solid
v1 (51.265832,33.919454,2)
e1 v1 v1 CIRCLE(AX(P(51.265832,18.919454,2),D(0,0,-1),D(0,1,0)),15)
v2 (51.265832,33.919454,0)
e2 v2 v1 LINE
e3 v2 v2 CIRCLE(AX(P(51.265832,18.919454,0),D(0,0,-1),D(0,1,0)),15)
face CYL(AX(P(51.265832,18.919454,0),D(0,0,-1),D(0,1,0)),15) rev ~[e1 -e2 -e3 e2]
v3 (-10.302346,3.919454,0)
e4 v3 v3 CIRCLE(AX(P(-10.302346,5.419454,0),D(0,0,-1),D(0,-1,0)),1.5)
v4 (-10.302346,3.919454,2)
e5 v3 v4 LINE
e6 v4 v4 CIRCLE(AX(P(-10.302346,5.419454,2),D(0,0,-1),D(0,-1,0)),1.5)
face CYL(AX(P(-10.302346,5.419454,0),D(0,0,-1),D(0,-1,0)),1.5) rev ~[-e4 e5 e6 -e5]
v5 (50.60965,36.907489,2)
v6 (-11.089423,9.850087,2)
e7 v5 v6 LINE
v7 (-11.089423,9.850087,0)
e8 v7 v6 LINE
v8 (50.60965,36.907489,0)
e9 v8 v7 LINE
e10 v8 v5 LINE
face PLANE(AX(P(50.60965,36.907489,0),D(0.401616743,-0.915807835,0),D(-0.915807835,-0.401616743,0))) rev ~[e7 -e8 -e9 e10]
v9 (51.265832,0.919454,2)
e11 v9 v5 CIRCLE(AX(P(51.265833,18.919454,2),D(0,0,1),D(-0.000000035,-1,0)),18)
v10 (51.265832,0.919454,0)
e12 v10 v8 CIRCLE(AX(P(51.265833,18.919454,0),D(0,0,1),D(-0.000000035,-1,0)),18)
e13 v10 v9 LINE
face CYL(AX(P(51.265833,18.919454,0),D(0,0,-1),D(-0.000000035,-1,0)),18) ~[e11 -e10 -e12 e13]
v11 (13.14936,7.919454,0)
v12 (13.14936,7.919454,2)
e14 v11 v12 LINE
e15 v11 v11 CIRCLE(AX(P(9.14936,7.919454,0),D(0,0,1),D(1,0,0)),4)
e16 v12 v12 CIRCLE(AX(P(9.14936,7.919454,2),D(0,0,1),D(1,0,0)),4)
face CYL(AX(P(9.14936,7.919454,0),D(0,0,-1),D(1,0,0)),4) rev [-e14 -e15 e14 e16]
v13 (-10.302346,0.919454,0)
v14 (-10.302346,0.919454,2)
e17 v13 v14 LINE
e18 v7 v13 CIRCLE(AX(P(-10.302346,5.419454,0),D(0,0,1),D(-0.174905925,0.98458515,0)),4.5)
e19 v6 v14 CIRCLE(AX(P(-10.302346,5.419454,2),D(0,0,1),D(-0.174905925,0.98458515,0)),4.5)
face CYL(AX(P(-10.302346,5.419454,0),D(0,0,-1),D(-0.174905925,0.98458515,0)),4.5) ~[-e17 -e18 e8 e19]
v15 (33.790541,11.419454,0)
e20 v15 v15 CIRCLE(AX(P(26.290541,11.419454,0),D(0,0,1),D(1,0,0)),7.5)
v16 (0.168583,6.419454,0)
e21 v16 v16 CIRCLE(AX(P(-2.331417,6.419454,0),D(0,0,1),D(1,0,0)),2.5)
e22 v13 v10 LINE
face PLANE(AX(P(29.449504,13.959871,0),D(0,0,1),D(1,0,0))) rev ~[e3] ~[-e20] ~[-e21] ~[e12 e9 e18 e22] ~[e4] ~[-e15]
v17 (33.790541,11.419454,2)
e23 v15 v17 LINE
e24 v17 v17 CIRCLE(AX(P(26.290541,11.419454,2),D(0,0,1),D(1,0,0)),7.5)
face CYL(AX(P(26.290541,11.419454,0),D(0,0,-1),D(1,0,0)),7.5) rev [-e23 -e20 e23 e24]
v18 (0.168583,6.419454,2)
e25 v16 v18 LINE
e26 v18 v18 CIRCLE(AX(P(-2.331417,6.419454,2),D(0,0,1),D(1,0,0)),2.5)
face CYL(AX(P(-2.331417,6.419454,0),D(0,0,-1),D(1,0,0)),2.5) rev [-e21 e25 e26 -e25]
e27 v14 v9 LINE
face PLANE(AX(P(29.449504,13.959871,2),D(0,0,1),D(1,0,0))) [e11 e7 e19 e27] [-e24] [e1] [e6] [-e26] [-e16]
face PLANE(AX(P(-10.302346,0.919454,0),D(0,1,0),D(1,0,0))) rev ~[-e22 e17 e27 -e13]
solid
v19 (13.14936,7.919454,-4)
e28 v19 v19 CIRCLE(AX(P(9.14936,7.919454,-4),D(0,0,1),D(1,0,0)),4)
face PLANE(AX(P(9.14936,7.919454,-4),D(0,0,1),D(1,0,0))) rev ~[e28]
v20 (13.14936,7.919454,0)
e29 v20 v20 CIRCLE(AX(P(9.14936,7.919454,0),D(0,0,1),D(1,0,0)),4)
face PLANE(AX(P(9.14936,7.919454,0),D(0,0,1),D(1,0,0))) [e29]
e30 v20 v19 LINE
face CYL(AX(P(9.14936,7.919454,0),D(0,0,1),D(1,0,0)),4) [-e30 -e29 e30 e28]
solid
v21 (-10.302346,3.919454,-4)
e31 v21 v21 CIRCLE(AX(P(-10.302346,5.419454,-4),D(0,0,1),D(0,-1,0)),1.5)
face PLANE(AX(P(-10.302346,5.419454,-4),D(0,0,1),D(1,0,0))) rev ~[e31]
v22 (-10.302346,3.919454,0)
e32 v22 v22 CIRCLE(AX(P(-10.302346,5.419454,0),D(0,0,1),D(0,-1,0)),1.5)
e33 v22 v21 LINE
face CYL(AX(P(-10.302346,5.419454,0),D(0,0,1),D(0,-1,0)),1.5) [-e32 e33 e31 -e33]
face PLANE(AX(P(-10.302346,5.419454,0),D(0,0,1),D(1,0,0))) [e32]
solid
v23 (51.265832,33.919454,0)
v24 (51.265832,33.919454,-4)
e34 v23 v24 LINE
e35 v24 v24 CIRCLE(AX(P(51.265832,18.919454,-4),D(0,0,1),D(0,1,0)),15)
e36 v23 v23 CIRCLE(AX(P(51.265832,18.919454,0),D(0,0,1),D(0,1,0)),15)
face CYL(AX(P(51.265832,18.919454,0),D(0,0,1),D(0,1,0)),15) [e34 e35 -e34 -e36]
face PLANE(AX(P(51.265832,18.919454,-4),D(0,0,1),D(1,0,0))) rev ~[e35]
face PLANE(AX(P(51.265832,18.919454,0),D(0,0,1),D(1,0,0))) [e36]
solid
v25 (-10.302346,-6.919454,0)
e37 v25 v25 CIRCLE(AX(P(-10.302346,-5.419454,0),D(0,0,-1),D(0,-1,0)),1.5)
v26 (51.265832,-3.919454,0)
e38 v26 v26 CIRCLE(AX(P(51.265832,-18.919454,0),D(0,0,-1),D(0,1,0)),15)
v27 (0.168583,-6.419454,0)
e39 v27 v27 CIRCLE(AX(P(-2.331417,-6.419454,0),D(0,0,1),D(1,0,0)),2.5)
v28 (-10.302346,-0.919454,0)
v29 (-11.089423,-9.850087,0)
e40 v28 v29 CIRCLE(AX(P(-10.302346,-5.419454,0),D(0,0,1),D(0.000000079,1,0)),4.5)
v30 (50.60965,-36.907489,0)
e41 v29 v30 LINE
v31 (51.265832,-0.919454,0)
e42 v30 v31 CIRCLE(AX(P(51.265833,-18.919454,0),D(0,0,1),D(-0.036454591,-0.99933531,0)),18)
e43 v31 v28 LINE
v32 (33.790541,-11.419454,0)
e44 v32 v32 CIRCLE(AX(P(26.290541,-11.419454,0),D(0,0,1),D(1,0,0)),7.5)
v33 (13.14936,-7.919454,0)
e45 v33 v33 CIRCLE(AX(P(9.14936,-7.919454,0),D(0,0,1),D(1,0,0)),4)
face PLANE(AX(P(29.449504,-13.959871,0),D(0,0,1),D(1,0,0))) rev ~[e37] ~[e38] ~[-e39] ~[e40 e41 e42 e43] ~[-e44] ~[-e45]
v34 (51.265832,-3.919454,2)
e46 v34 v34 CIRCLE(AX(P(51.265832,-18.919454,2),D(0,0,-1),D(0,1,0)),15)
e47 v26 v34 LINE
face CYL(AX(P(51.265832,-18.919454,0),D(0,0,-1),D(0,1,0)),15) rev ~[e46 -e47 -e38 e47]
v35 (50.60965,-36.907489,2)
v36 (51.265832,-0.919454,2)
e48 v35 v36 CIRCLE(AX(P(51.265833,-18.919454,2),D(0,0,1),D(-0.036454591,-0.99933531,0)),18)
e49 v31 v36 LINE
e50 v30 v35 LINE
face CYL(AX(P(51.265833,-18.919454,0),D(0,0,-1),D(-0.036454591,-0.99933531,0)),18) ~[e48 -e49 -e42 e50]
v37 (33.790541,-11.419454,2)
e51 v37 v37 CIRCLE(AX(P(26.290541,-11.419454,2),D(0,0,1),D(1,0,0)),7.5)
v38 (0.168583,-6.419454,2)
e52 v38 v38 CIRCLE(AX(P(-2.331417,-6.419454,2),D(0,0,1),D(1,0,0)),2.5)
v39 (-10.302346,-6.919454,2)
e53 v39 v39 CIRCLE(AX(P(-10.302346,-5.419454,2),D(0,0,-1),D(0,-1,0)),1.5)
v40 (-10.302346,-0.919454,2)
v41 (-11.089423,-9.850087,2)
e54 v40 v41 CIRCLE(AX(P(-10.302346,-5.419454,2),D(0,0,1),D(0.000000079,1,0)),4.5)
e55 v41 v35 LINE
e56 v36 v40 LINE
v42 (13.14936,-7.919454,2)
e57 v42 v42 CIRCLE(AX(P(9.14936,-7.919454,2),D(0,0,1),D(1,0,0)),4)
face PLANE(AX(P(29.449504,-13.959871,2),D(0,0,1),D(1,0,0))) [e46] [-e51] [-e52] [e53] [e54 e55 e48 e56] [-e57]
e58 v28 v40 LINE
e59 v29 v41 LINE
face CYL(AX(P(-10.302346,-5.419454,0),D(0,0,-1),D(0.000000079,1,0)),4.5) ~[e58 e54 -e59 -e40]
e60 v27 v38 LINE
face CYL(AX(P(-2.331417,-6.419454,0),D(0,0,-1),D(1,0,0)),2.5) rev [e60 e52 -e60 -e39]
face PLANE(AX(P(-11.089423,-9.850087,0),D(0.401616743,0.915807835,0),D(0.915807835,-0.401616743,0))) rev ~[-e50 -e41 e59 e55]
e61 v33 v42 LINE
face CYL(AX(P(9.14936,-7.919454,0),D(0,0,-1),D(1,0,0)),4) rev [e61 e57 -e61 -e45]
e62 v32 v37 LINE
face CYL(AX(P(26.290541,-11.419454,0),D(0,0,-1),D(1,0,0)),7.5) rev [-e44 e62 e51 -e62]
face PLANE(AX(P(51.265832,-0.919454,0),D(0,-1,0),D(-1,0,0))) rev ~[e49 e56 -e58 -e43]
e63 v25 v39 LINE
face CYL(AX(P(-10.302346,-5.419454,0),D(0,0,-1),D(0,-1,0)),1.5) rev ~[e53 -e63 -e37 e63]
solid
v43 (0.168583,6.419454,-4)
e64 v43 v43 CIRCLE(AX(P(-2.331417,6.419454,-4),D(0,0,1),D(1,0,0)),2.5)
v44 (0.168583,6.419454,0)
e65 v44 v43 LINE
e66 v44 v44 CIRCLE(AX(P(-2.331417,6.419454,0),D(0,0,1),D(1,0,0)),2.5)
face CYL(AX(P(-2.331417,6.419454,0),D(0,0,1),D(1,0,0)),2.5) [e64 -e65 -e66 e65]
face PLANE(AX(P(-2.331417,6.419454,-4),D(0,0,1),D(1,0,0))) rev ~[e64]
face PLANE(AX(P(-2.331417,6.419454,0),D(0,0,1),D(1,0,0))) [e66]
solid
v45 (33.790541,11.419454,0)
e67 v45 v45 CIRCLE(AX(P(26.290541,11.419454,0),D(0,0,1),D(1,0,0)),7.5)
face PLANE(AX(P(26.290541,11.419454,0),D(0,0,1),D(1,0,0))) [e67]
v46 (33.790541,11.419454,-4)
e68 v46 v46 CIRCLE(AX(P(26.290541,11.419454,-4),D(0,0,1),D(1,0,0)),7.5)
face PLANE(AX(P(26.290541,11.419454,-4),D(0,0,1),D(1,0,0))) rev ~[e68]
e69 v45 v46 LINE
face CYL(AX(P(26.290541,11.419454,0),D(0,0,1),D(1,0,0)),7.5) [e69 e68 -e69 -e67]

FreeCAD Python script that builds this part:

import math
import FreeCAD as App
import Part
import Sketcher

V = App.Vector
Q = App.Units.Quantity

doc = App.newDocument("Part")
body = doc.addObject("PartDesign::Body", "Body")
body.AllowCompound = True

sketch1 = body.newObject("Sketcher::SketchObject", "Sketch")
sketch1.AttachmentSupport = (doc.getObject("XY_Plane"), [""])
sketch1.MapMode = "FlatFace"
sketch1.addGeometry([
    Part.ArcOfCircle(Part.Circle(V(-10.3, -5.4, 0), V(0, 0, 1), 4.5), math.radians(90), math.radians(260)),
    Part.LineSegment(V(-11.1, -9.9, 0), V(50.6, -36.9, 0)),
    Part.ArcOfCircle(Part.Circle(V(51.3, -18.9, 0), V(0, 0, 1), 18), math.radians(-92), math.radians(90)),
    Part.LineSegment(V(51.3, -0.9, 0), V(-10.3, -0.9, 0)),
    Part.Circle(V(51.3, -18.9, 0), V(0, 0, 1), 15),
    Part.Circle(V(26.3, -11.4, 0), V(0, 0, 1), 7.5),
    Part.Circle(V(-2.3, -6.4, 0), V(0, 0, 1), 2.5),
    Part.Circle(V(-10.3, -5.4, 0), V(0, 0, 1), 1.5),
    Part.Circle(V(9.1, -7.9, 0), V(0, 0, 1), 4),
    Part.LineSegment(V(-10.3, 0.9, 0), V(51.3, 0.9, 0)),
    Part.ArcOfCircle(Part.Circle(V(51.3, 18.9, 0), V(0, 0, 1), 18), math.radians(-90), math.radians(92)),
    Part.LineSegment(V(50.6, 36.9, 0), V(-11.1, 9.9, 0)),
    Part.ArcOfCircle(Part.Circle(V(-10.3, 5.4, 0), V(0, 0, 1), 4.5), math.radians(100), math.radians(270)),
    Part.Circle(V(-10.3, 5.4, 0), V(0, 0, 1), 1.5),
    Part.Circle(V(-2.3, 6.4, 0), V(0, 0, 1), 2.5),
    Part.Circle(V(9.1, 7.9, 0), V(0, 0, 1), 4),
    Part.Circle(V(26.3, 11.4, 0), V(0, 0, 1), 7.5),
    Part.Circle(V(51.3, 18.9, 0), V(0, 0, 1), 15),
], False)
sketch1.addConstraint([
    Sketcher.Constraint("Coincident", 0, 2, 1, 1),
    Sketcher.Constraint("Coincident", 1, 2, 2, 1),
    Sketcher.Constraint("Tangent", 2, 2, 3, 1),
    Sketcher.Constraint("Tangent", 3, 2, 0, 1),
    Sketcher.Constraint("Tangent", 9, 2, 10, 1),
    Sketcher.Constraint("Coincident", 10, 2, 11, 1),
    Sketcher.Constraint("Coincident", 11, 2, 12, 1),
    Sketcher.Constraint("Tangent", 12, 2, 9, 1),
    Sketcher.Constraint("Horizontal", 3),
    Sketcher.Constraint("Horizontal", 9),
    Sketcher.Constraint("Coincident", 4, 3, 2, 3),
    Sketcher.Constraint("Coincident", 7, 3, 0, 3),
    Sketcher.Constraint("Coincident", 13, 3, 12, 3),
    Sketcher.Constraint("Coincident", 17, 3, 10, 3),
    Sketcher.Constraint("Equal", 2, 10),
    Sketcher.Constraint("Equal", 0, 12),
    Sketcher.Constraint("Equal", 7, 13),
    Sketcher.Constraint("Equal", 6, 14),
    Sketcher.Constraint("Equal", 8, 15),
    Sketcher.Constraint("Equal", 5, 16),
    Sketcher.Constraint("Equal", 4, 17),
    Sketcher.Constraint("Symmetric", 2, 3, 10, 3, -1),
    Sketcher.Constraint("Symmetric", 6, 3, 14, 3, -1),
    Sketcher.Constraint("Symmetric", 8, 3, 15, 3, -1),
    Sketcher.Constraint("Symmetric", 5, 3, 16, 3, -1),
    Sketcher.Constraint("Symmetric", 0, 2, 11, 2, -1),
    Sketcher.Constraint("Vertical", 1, 2, 10, 2),
    Sketcher.Constraint("Diameter", 4, Q("30 mm")),
    Sketcher.Constraint("Diameter", 5, Q("15 mm")),
    Sketcher.Constraint("Diameter", 6, Q("5 mm")),
    Sketcher.Constraint("Diameter", 7, Q("3 mm")),
    Sketcher.Constraint("Diameter", 8, Q("8 mm")),
    Sketcher.Constraint("Radius", 2, Q("18 mm")),
    Sketcher.Constraint("Radius", 0, Q("4.5 mm")),
    Sketcher.Constraint("DistanceY", 5, 3, 0, 3, Q("6 mm")),
    Sketcher.Constraint("DistanceY", 6, 3, 0, 3, Q("1 mm")),
    Sketcher.Constraint("DistanceY", 4, 3, 8, 3, Q("11 mm")),
    Sketcher.Constraint("Distance", 1, Q("67.3712 mm")),
    Sketcher.Constraint("DistanceX", 3, 2, 3, 1, Q("61.568178 mm")),
    Sketcher.Constraint("DistanceX", -1, 1, 5, 3, Q("26.290541 mm")),
    Sketcher.Constraint("DistanceX", -1, 1, 8, 3, Q("9.14936 mm")),
    Sketcher.Constraint("DistanceX", -1, 1, 1, 2, Q("50.60965 mm")),
    Sketcher.Constraint("DistanceY", 1, 2, -1, 1, Q("36.907489 mm")),
    Sketcher.Constraint("DistanceX", 5, 3, 4, 3, Q("24.975291 mm")),
    Sketcher.Constraint("DistanceX", 0, 3, 6, 3, Q("7.970929 mm")),
])
pad1 = body.newObject("PartDesign::Pad", "Pad")
pad1.Profile = sketch1
pad1.Length = 2
body2 = doc.addObject("PartDesign::Body", "Body001")
body2.AllowCompound = True

sketch2 = body2.newObject("Sketcher::SketchObject", "Sketch001")
sketch2.AttachmentSupport = (doc.getObject("XY_Plane001"), [""])
sketch2.MapMode = "FlatFace"
sketch2.addGeometry([
    Part.Circle(V(51.3, 18.9, 0), V(0, 0, 1), 15),
    Part.Circle(V(26.3, 11.4, 0), V(0, 0, 1), 7.5),
    Part.Circle(V(9.1, 7.9, 0), V(0, 0, 1), 4),
    Part.Circle(V(-2.3, 6.4, 0), V(0, 0, 1), 2.5),
    Part.Circle(V(-10.3, 5.4, 0), V(0, 0, 1), 1.5),
], False)
sketch2.addConstraint([
    Sketcher.Constraint("Diameter", 0, Q("30 mm")),
    Sketcher.Constraint("Diameter", 1, Q("15 mm")),
    Sketcher.Constraint("Diameter", 2, Q("8 mm")),
    Sketcher.Constraint("Diameter", 3, Q("5 mm")),
    Sketcher.Constraint("Diameter", 4, Q("3 mm")),
    Sketcher.Constraint("DistanceY", 2, 3, 0, 3, Q("11 mm")),
    Sketcher.Constraint("DistanceY", 3, 3, 1, 3, Q("5 mm")),
    Sketcher.Constraint("DistanceY", 4, 3, 3, 3, Q("1 mm")),
    Sketcher.Constraint("DistanceY", 1, 3, 0, 3, Q("7.5 mm")),
    Sketcher.Constraint("DistanceX", -1, 1, 1, 3, Q("26.290541 mm")),
    Sketcher.Constraint("DistanceX", -1, 1, 2, 3, Q("9.14936 mm")),
    Sketcher.Constraint("DistanceX", 1, 3, 0, 3, Q("24.975291 mm")),
    Sketcher.Constraint("DistanceX", 3, 3, 0, 3, Q("53.597249 mm")),
    Sketcher.Constraint("DistanceX", 4, 3, 3, 3, Q("7.970929 mm")),
    Sketcher.Constraint("DistanceY", -1, 1, 0, 3, Q("18.919454 mm")),
])
pad2 = body2.newObject("PartDesign::Pad", "Pad001")
pad2.Profile = sketch2
pad2.Length = 4
pad2.Reversed = True

doc.recompute()
